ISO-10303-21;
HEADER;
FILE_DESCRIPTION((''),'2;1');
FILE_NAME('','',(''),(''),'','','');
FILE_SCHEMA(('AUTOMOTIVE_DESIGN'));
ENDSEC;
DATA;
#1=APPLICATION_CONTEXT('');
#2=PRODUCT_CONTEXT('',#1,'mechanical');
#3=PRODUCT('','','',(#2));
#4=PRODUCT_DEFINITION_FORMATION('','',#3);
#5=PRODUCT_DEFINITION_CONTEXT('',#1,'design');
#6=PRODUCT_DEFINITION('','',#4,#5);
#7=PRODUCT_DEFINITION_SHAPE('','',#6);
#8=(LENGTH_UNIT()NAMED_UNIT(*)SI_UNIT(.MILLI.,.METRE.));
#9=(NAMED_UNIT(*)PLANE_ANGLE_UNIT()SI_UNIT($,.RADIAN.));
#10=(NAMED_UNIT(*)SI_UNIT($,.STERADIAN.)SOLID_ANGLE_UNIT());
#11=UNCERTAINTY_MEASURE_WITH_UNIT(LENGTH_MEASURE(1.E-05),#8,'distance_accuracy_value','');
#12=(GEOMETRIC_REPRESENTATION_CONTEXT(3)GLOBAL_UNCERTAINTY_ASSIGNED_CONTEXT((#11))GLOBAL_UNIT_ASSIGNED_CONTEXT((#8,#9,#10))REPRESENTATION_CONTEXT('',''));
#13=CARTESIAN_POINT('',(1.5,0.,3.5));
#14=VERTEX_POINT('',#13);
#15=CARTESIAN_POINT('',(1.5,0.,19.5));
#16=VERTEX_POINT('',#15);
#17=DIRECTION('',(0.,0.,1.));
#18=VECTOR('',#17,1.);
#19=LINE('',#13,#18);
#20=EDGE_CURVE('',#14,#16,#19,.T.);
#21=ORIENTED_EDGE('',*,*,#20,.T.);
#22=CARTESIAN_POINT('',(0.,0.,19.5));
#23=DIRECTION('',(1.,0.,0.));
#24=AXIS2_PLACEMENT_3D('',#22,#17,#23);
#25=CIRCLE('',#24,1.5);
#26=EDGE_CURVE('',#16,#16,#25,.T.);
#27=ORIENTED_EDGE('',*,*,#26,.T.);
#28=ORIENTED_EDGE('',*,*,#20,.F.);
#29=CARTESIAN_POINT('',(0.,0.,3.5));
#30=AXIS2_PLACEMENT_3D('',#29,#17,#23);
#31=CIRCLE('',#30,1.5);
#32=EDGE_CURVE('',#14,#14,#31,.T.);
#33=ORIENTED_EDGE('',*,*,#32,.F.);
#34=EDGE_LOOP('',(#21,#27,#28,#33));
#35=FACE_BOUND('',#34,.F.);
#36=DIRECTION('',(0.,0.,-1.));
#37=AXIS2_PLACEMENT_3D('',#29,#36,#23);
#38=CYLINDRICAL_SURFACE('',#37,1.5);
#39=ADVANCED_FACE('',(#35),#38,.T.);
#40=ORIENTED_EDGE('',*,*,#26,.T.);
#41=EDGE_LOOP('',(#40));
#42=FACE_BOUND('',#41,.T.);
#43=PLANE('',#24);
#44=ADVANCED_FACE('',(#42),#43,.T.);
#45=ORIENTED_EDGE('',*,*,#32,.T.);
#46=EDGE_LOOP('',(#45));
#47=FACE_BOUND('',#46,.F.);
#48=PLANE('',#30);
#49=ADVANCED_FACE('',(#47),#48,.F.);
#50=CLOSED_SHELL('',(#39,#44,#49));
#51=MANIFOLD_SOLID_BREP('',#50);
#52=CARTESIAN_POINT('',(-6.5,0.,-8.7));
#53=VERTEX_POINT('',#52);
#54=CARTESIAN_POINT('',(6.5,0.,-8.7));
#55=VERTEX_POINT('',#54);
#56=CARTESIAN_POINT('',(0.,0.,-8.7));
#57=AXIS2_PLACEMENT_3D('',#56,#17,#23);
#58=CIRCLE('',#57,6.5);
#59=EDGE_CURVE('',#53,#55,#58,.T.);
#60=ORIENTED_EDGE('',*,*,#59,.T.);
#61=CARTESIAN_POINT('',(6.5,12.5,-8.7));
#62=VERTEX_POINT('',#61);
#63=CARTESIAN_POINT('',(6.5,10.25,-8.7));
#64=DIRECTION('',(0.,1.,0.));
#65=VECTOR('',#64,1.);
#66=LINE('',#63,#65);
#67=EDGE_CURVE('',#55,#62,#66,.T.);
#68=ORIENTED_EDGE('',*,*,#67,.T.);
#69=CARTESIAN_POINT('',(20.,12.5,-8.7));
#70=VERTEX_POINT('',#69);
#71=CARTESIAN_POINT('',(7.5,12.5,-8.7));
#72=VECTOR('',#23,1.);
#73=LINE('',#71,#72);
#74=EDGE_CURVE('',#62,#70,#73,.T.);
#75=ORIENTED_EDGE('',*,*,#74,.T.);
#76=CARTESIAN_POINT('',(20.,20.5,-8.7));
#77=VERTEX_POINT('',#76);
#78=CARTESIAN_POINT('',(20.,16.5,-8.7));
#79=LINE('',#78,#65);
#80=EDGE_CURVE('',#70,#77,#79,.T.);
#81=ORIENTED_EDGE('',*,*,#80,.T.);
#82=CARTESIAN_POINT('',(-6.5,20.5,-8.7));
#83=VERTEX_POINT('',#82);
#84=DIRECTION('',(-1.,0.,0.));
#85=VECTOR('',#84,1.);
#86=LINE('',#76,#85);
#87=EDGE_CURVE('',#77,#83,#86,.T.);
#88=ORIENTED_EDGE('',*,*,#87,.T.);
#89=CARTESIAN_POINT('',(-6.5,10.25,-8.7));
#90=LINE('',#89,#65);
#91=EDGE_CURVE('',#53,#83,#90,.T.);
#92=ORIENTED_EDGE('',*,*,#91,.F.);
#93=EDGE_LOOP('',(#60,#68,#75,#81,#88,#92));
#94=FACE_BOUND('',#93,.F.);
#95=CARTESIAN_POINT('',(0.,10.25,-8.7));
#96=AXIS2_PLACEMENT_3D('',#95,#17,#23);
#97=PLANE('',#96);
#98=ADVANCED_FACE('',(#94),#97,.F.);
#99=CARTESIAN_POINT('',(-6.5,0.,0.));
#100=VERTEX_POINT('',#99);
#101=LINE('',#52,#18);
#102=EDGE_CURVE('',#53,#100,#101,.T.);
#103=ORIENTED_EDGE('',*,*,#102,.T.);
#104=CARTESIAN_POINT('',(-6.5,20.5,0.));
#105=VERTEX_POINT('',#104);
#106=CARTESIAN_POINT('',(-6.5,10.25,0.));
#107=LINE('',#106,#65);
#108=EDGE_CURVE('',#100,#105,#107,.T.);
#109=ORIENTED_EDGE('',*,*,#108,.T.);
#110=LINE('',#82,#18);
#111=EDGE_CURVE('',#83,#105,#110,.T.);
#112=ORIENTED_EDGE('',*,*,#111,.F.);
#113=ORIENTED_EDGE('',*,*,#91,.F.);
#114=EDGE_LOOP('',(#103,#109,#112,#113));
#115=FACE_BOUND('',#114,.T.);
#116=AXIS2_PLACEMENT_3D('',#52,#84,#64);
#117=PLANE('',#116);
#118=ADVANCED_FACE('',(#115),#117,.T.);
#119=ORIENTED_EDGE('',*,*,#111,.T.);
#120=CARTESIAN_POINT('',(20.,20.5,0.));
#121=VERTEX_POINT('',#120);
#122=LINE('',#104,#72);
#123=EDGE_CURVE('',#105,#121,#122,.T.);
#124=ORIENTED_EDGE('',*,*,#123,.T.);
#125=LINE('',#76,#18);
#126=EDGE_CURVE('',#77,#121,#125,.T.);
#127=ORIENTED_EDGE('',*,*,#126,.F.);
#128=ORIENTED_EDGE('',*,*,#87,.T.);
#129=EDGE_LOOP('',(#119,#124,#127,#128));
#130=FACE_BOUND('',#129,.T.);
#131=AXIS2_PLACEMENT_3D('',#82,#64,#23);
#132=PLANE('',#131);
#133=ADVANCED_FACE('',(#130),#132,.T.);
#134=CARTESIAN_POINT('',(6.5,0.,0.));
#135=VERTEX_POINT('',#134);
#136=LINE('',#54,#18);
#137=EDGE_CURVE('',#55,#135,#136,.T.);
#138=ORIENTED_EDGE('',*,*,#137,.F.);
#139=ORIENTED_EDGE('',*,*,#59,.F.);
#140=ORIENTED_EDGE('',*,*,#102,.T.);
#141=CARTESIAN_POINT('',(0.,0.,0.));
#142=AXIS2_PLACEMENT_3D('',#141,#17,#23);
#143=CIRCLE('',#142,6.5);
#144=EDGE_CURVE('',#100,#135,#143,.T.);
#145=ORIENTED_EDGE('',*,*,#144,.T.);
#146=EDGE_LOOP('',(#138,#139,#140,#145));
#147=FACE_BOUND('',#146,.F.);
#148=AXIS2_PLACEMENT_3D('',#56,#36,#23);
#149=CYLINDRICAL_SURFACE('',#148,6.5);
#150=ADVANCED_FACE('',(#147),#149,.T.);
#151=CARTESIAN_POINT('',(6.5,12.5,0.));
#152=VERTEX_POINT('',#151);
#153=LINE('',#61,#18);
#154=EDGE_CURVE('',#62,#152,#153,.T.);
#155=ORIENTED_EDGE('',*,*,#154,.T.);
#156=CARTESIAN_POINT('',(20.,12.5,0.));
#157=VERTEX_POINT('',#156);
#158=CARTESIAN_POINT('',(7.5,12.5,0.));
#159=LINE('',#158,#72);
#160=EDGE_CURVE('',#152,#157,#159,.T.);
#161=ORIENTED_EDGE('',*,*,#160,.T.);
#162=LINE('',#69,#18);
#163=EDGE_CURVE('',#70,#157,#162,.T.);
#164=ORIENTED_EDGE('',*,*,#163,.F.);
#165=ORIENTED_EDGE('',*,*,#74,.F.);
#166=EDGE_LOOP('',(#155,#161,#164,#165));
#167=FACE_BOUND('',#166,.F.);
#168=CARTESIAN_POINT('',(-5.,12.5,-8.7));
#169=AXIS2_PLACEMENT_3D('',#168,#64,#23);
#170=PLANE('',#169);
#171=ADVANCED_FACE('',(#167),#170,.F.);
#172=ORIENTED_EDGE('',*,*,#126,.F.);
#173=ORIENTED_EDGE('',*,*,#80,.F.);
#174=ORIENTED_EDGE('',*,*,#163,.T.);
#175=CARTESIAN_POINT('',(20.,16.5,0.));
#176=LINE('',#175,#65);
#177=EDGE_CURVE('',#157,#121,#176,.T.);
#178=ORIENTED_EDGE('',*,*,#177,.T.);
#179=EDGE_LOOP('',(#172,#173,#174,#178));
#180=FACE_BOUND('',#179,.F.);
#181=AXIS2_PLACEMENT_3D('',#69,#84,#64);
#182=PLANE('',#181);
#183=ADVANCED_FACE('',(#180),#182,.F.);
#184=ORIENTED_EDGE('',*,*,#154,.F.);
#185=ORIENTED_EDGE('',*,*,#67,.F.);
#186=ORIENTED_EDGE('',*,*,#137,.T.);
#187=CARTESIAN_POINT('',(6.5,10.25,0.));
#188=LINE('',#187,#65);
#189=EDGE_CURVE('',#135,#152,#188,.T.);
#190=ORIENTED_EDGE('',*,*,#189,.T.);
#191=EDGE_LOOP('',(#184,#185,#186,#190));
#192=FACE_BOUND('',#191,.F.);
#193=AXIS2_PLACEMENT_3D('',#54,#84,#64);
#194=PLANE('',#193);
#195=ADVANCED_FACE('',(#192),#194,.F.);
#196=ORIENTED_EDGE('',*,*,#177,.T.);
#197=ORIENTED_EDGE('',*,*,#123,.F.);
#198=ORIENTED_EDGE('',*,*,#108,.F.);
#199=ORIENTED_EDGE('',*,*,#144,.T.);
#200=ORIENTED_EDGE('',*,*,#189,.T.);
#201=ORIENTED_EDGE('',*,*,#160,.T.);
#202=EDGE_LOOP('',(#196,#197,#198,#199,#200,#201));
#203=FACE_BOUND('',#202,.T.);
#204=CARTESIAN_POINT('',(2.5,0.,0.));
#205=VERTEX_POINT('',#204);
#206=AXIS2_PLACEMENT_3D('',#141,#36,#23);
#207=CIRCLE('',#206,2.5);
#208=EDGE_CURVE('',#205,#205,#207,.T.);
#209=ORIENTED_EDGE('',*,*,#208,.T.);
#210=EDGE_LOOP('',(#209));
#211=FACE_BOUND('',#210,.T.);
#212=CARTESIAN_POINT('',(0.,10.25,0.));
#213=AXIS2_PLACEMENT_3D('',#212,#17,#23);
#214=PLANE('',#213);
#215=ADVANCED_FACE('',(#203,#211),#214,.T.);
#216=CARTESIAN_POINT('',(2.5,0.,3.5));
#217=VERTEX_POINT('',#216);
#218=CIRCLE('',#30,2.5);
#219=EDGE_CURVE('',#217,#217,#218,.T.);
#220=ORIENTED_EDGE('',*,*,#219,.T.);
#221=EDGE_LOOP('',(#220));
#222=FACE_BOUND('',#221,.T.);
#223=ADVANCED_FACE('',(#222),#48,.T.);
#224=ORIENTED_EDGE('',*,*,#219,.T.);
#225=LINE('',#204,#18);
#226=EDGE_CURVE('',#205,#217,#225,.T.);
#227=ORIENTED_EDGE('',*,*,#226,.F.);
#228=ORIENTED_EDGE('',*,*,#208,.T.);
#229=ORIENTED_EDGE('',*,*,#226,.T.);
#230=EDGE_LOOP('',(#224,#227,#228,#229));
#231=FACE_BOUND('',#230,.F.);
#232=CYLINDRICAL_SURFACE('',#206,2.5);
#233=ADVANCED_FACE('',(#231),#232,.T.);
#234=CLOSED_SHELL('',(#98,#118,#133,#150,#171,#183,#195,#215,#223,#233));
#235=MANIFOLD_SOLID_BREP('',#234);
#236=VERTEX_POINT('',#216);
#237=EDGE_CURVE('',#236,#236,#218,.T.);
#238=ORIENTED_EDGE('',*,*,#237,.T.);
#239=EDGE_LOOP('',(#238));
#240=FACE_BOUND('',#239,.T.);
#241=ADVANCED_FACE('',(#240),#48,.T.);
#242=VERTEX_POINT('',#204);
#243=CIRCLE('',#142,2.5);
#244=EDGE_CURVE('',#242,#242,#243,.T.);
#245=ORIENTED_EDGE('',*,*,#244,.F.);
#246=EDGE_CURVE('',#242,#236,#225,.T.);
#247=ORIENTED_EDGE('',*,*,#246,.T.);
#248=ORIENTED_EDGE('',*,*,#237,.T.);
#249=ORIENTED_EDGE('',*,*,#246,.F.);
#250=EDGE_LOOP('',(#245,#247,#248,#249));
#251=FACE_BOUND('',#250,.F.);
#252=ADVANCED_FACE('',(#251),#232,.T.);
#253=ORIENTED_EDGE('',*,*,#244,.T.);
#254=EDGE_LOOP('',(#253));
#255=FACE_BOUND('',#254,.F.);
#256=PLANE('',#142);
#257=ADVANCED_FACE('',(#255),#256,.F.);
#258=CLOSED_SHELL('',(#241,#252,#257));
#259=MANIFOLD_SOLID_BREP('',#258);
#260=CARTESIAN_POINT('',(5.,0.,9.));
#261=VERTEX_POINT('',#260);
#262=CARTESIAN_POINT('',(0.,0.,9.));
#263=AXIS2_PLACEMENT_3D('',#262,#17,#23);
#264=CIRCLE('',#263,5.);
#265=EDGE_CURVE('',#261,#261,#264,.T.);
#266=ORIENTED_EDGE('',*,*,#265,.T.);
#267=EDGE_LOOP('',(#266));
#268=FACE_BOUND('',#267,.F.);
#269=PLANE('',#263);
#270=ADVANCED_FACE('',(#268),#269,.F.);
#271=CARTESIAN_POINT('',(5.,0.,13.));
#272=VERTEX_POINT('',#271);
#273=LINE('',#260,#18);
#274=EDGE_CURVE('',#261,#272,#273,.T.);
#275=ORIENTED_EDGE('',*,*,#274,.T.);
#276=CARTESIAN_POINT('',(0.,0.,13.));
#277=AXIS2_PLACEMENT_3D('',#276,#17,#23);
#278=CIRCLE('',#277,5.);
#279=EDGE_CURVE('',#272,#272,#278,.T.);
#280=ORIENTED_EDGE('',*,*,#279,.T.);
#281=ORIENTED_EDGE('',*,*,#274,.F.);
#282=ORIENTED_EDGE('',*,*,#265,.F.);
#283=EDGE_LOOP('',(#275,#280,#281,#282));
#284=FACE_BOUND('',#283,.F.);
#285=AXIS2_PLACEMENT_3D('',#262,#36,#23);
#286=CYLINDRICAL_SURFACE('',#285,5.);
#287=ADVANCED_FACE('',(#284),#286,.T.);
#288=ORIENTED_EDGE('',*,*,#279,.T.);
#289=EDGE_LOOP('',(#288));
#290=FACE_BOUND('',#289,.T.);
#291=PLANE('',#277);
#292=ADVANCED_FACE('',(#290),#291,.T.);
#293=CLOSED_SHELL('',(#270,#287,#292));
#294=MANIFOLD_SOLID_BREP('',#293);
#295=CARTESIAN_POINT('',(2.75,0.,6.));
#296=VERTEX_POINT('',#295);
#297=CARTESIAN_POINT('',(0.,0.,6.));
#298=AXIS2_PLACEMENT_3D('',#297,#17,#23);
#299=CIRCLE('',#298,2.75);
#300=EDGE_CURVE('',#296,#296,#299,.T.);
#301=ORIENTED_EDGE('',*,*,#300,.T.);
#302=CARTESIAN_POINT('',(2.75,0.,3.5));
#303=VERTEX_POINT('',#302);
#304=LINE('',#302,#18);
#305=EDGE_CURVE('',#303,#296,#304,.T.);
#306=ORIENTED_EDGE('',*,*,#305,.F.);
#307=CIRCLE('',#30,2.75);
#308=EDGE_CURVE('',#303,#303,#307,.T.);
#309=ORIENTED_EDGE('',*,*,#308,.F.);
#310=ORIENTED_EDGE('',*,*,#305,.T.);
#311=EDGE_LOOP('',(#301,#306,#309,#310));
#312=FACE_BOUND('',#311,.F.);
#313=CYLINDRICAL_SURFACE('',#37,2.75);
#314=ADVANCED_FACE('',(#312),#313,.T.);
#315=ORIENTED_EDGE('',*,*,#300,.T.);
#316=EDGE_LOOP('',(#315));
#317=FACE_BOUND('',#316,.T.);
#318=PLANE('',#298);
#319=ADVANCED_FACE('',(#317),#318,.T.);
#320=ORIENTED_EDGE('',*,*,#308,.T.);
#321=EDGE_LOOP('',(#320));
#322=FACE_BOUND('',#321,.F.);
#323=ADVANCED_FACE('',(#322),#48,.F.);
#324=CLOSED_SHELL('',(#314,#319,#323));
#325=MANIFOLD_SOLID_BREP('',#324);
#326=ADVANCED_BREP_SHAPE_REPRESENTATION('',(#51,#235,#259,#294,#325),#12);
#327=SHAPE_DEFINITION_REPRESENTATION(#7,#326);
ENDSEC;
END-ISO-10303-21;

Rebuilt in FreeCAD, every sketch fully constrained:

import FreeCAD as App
import Part
import Sketcher


def add_polygon(sketch, points):
    """Adds a closed chain of lines whose ends are joined by coincident constraints."""
    first, n = sketch.GeometryCount, len(points)
    for a, b in zip(points, points[1:] + points[:1]):
        sketch.addGeometry(Part.LineSegment(App.Vector(*a, 0), App.Vector(*b, 0)), False)
    for i in range(n):
        sketch.addConstraint(Sketcher.Constraint("Coincident", first + i, 2, first + (i + 1) % n, 1))

doc = App.newDocument("Part")
body = doc.addObject("PartDesign::Body", "Body")

# Sketch on XY plane
sketch1 = body.newObject("Sketcher::SketchObject", "Sketch")
sketch1.AttachmentSupport = (doc.getObject("XY_Plane"), [""])
sketch1.MapMode = "FlatFace"
sketch1.AttachmentOffset = App.Placement(App.Vector(0, 0, 3.5), App.Rotation())
sketch1.addGeometry(Part.Circle(App.Vector(0, 0, 0), App.Vector(0, 0, 1), 1.5), False)
sketch1.addConstraint(Sketcher.Constraint("Coincident", 0, 3, -1, 1))
sketch1.addConstraint(Sketcher.Constraint("Diameter", 0, 3.0))
pad1 = body.newObject("PartDesign::Pad", "Pad")
pad1.Profile = sketch1
pad1.Length = 16
body2 = doc.addObject("PartDesign::Body", "Body001")

# Sketch on XY plane
sketch2 = body2.newObject("Sketcher::SketchObject", "Sketch001")
sketch2.AttachmentSupport = (doc.getObject("XY_Plane001"), [""])
sketch2.MapMode = "FlatFace"
sketch2.AttachmentOffset = App.Placement(App.Vector(0, 0, 3.5), App.Rotation())
sketch2.addGeometry(Part.Circle(App.Vector(0, 0, 0), App.Vector(0, 0, 1), 2.8), False)
sketch2.addConstraint(Sketcher.Constraint("Coincident", 0, 3, -1, 1))
sketch2.addConstraint(Sketcher.Constraint("Diameter", 0, 5.5))
pad2 = body2.newObject("PartDesign::Pad", "Pad001")
pad2.Profile = sketch2
pad2.Length = 2.5
body3 = doc.addObject("PartDesign::Body", "Body002")

# Sketch on XY plane
sketch3 = body3.newObject("Sketcher::SketchObject", "Sketch002")
sketch3.AttachmentSupport = (doc.getObject("XY_Plane002"), [""])
sketch3.MapMode = "FlatFace"
sketch3.AttachmentOffset = App.Placement(App.Vector(0, 0, -8.7), App.Rotation())
sketch3.addGeometry(Part.Circle(App.Vector(0, 0, 0), App.Vector(0, 0, 1), 6), False)
sketch3.addConstraint(Sketcher.Constraint("Coincident", 0, 3, -1, 1))
sketch3.addConstraint(Sketcher.Constraint("Diameter", 0, 13.0))
pad3 = body3.newObject("PartDesign::Pad", "Pad002")
pad3.Profile = sketch3
pad3.Length = 8.7
body4 = doc.addObject("PartDesign::Body", "Body003")

# Sketch on XY plane
sketch4 = body4.newObject("Sketcher::SketchObject", "Sketch003")
sketch4.AttachmentSupport = (doc.getObject("XY_Plane003"), [""])
sketch4.MapMode = "FlatFace"
sketch4.AttachmentOffset = App.Placement(App.Vector(0, 0, -8.7), App.Rotation())
add_polygon(sketch4, [(-5, 20), (-5, 12), (20, 12), (20, 20)])  # lines 0-3
sketch4.addConstraint(Sketcher.Constraint("Vertical", 0))
sketch4.addConstraint(Sketcher.Constraint("Horizontal", 1))
sketch4.addConstraint(Sketcher.Constraint("Vertical", 2))
sketch4.addConstraint(Sketcher.Constraint("Horizontal", 3))
sketch4.addConstraint(Sketcher.Constraint("DistanceX", 1, 1, 1, 2, 25.0))
sketch4.addConstraint(Sketcher.Constraint("DistanceY", 0, 2, 0, 1, 8.0))
sketch4.addConstraint(Sketcher.Constraint("DistanceX", 0, 2, -1, 1, 5.0))
sketch4.addConstraint(Sketcher.Constraint("DistanceY", -1, 1, 0, 2, 12.5))
pad4 = body4.newObject("PartDesign::Pad", "Pad003")
pad4.Profile = sketch4
pad4.Length = 8.7
body5 = doc.addObject("PartDesign::Body", "Body004")

# Sketch on XY plane
sketch5 = body5.newObject("Sketcher::SketchObject", "Sketch004")
sketch5.AttachmentSupport = (doc.getObject("XY_Plane004"), [""])
sketch5.MapMode = "FlatFace"
sketch5.AttachmentOffset = App.Placement(App.Vector(0, 0, -8.7), App.Rotation())
add_polygon(sketch5, [(-6, 20), (-6, 0), (6, 0), (6, 20)])  # lines 0-3
sketch5.addConstraint(Sketcher.Constraint("Vertical", 0))
sketch5.addConstraint(Sketcher.Constraint("Horizontal", 1))
sketch5.addConstraint(Sketcher.Constraint("Vertical", 2))
sketch5.addConstraint(Sketcher.Constraint("Horizontal", 3))
sketch5.addConstraint(Sketcher.Constraint("Symmetric", 0, 2, 1, 2, -1, 1))
sketch5.addConstraint(Sketcher.Constraint("DistanceX", 1, 1, 1, 2, 13.0))
sketch5.addConstraint(Sketcher.Constraint("DistanceY", 0, 2, 0, 1, 20.5))
pad5 = body5.newObject("PartDesign::Pad", "Pad004")
pad5.Profile = sketch5
pad5.Length = 8.7
body6 = doc.addObject("PartDesign::Body", "Body005")
body6.AllowCompound = True

# Sketch on XY plane
sketch6 = body6.newObject("Sketcher::SketchObject", "Sketch005")
sketch6.AttachmentSupport = (doc.getObject("XY_Plane005"), [""])
sketch6.MapMode = "FlatFace"
sketch6.addGeometry(Part.Circle(App.Vector(0, 0, 0), App.Vector(0, 0, 1), 2.5), False)
sketch6.addConstraint(Sketcher.Constraint("Coincident", 0, 3, -1, 1))
sketch6.addConstraint(Sketcher.Constraint("Diameter", 0, 5.0))
pad6 = body6.newObject("PartDesign::Pad", "Pad005")
pad6.Profile = sketch6
pad6.Length = 3.5
doc.recompute()

boolean = body6.newObject("PartDesign::Boolean", "Boolean")
boolean.Type = "Fuse"
boolean.addObjects([body3])
doc.recompute()

boolean2 = body6.newObject("PartDesign::Boolean", "Boolean001")
boolean2.Type = "Fuse"
boolean2.addObjects([body4])
doc.recompute()

boolean3 = body6.newObject("PartDesign::Boolean", "Boolean002")
boolean3.Type = "Fuse"
boolean3.addObjects([body5])
body7 = doc.addObject("PartDesign::Body", "Body006")

# Sketch on XY plane
sketch7 = body7.newObject("Sketcher::SketchObject", "Sketch006")
sketch7.AttachmentSupport = (doc.getObject("XY_Plane006"), [""])
sketch7.MapMode = "FlatFace"
sketch7.addGeometry(Part.Circle(App.Vector(0, 0, 0), App.Vector(0, 0, 1), 2.5), False)
sketch7.addConstraint(Sketcher.Constraint("Coincident", 0, 3, -1, 1))
sketch7.addConstraint(Sketcher.Constraint("Diameter", 0, 5.0))
pad7 = body7.newObject("PartDesign::Pad", "Pad006")
pad7.Profile = sketch7
pad7.Length = 3.5
body8 = doc.addObject("PartDesign::Body", "Body007")

# Sketch on XY plane
sketch8 = body8.newObject("Sketcher::SketchObject", "Sketch007")
sketch8.AttachmentSupport = (doc.getObject("XY_Plane007"), [""])
sketch8.MapMode = "FlatFace"
sketch8.AttachmentOffset = App.Placement(App.Vector(0, 0, 9), App.Rotation())
sketch8.addGeometry(Part.Circle(App.Vector(0, 0, 0), App.Vector(0, 0, 1), 5), False)
sketch8.addConstraint(Sketcher.Constraint("Coincident", 0, 3, -1, 1))
sketch8.addConstraint(Sketcher.Constraint("Diameter", 0, 10.0))
pad8 = body8.newObject("PartDesign::Pad", "Pad007")
pad8.Profile = sketch8
pad8.Length = 4

doc.recompute()
